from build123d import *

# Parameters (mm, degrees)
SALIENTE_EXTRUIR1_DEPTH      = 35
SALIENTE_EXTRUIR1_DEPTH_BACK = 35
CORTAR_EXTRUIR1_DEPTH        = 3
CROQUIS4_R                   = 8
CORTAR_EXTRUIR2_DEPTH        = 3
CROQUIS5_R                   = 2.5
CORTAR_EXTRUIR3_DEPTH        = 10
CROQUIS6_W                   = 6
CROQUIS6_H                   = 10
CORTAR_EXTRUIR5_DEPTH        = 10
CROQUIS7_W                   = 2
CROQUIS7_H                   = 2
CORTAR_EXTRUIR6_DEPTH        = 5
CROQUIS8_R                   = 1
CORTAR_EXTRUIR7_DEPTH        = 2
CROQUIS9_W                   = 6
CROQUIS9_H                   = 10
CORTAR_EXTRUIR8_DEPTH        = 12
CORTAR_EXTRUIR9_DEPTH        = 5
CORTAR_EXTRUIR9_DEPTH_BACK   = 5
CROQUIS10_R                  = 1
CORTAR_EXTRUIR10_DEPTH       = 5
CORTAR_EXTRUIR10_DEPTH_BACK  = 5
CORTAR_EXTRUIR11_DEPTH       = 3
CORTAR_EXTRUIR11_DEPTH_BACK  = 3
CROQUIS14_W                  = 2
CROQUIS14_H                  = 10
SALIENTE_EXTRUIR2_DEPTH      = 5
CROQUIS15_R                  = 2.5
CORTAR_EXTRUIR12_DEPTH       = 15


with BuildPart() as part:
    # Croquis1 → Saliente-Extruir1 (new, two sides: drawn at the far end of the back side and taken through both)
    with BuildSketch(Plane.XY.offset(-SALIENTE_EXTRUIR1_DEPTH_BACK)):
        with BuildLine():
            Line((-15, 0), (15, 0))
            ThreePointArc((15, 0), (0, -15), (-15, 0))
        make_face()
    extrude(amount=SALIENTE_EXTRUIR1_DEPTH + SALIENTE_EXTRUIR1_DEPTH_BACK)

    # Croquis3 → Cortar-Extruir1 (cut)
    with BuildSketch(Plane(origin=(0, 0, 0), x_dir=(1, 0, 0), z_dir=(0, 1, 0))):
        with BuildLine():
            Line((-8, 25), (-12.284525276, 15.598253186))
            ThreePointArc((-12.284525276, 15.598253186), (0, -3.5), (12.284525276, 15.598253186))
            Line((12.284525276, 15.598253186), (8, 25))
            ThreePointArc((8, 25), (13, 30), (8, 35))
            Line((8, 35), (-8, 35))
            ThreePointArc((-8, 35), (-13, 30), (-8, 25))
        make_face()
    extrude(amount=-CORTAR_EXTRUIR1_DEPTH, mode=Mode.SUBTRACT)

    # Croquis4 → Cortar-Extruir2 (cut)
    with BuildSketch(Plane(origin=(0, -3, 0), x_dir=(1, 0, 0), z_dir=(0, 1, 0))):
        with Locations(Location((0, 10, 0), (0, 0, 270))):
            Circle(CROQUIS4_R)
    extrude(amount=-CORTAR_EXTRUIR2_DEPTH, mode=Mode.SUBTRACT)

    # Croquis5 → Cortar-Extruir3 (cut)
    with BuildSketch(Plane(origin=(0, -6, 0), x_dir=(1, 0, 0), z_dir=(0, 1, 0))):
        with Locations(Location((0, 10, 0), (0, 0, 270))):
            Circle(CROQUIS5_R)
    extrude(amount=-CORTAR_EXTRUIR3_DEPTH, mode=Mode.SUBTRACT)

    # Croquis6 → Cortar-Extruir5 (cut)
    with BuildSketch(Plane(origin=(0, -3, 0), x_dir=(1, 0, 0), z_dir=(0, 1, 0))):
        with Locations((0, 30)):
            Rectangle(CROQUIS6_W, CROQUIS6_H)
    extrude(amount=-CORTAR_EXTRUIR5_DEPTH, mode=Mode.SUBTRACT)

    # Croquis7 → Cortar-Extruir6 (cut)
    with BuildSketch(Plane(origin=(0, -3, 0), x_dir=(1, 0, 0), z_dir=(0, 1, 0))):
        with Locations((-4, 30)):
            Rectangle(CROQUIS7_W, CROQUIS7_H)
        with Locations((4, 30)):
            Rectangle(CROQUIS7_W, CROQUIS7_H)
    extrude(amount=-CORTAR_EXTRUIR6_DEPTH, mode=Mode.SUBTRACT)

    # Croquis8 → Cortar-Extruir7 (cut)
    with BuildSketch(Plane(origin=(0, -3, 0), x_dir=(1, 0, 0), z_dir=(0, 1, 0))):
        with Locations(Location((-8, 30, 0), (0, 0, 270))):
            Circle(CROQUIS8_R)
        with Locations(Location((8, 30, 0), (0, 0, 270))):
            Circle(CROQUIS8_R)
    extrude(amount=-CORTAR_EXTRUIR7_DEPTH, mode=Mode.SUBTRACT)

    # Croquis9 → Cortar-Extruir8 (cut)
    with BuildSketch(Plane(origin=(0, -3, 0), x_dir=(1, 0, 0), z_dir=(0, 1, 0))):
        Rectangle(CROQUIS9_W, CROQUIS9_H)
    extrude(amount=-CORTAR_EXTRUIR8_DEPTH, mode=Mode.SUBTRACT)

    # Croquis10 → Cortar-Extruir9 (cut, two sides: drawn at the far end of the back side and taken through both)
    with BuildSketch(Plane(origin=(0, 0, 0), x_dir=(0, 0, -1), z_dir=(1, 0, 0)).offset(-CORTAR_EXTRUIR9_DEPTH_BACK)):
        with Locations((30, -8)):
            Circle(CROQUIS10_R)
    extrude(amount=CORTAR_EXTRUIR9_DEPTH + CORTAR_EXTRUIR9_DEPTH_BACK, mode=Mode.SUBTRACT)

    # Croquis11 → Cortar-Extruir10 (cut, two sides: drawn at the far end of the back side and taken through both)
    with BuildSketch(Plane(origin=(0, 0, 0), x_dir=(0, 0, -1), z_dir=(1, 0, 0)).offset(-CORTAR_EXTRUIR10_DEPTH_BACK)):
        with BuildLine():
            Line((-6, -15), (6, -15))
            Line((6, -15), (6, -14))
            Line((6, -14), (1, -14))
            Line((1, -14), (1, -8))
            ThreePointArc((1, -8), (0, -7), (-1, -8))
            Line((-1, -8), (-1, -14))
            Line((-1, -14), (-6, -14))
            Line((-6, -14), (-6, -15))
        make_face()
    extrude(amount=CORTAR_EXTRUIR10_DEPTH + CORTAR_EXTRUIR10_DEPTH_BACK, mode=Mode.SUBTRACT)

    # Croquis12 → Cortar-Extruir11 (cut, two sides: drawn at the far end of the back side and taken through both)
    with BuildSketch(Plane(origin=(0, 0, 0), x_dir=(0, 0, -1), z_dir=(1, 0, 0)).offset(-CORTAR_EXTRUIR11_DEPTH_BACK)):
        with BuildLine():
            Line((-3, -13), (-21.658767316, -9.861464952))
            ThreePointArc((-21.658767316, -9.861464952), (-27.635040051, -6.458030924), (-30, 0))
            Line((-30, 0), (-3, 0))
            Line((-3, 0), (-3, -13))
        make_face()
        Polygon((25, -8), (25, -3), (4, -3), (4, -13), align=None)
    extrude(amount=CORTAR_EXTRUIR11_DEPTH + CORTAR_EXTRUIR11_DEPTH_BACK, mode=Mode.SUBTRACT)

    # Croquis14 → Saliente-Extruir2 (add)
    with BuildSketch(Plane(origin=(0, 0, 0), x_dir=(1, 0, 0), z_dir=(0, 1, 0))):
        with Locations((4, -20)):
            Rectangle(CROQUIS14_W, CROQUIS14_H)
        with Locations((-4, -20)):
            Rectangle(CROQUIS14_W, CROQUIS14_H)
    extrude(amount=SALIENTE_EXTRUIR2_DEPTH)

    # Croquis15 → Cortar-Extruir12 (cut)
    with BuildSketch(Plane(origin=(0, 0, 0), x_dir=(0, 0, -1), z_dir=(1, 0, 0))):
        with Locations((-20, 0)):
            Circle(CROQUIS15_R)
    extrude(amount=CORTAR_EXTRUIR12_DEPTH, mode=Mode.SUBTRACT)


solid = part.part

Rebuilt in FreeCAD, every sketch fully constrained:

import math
import FreeCAD as App
import Part
import Sketcher
from FreeCAD import Vector


def add_polygon(sketch, points):
    """Adds a closed chain of lines whose ends are joined by coincident constraints."""
    first, n = sketch.GeometryCount, len(points)
    for a, b in zip(points, points[1:] + points[:1]):
        sketch.addGeometry(Part.LineSegment(App.Vector(*a, 0), App.Vector(*b, 0)), False)
    for i in range(n):
        sketch.addConstraint(Sketcher.Constraint("Coincident", first + i, 2, first + (i + 1) % n, 1))

doc = App.newDocument("Part")
body = doc.addObject("PartDesign::Body", "Body")

sketch1 = body.newObject("Sketcher::SketchObject", "Sketch")
sketch1.AttachmentSupport = (doc.getObject("XY_Plane"), [""])
sketch1.MapMode = "FlatFace"
sketch1.addGeometry(Part.LineSegment(Vector(15, 0, 0), Vector(-15, 0, 0)), False)
sketch1.addGeometry(Part.ArcOfCircle(Part.Circle(Vector(0, 0, 0), Vector(0, 0, 1), 15), math.radians(180), math.radians(360)), False)
sketch1.addConstraint(Sketcher.Constraint("Coincident", 0, 1, 1, 2))
sketch1.addConstraint(Sketcher.Constraint("Coincident", 1, 1, 0, 2))
sketch1.addConstraint(Sketcher.Constraint("Horizontal", 0))
sketch1.addConstraint(Sketcher.Constraint("Coincident", 1, 3, -1, 1))
sketch1.addConstraint(Sketcher.Constraint("PointOnObject", 0, 1, -1))
sketch1.addConstraint(Sketcher.Constraint("Radius", 1, 15.0))
pad1 = body.newObject("PartDesign::Pad", "Pad")
pad1.Profile = sketch1
pad1.Type = "TwoLengths"
pad1.Length = 35
pad1.Length2 = 35

sketch2 = body.newObject("Sketcher::SketchObject", "Sketch001")
sketch2.AttachmentSupport = (doc.getObject("XZ_Plane"), [""])
sketch2.MapMode = "FlatFace"
sketch2.addGeometry(Part.LineSegment(Vector(-8, -25, 0), Vector(-12.284525, -15.598253, 0)), False)
sketch2.addGeometry(Part.ArcOfCircle(Part.Circle(Vector(0, -10, 0), Vector(0, 0, 1), 13.5), math.radians(-24.499508), math.radians(204.499508)), False)
sketch2.addGeometry(Part.LineSegment(Vector(12.284525, -15.598253, 0), Vector(8, -25, 0)), False)
sketch2.addGeometry(Part.ArcOfCircle(Part.Circle(Vector(8, -30, 0), Vector(0, 0, 1), 5), math.radians(-90), math.radians(90)), False)
sketch2.addGeometry(Part.LineSegment(Vector(8, -35, 0), Vector(-8, -35, 0)), False)
sketch2.addGeometry(Part.ArcOfCircle(Part.Circle(Vector(-8, -30, 0), Vector(0, 0, 1), 5), math.radians(90), math.radians(270)), False)
sketch2.addConstraint(Sketcher.Constraint("Tangent", 0, 2, 1, 2))
sketch2.addConstraint(Sketcher.Constraint("Tangent", 1, 1, 2, 1))
sketch2.addConstraint(Sketcher.Constraint("Coincident", 2, 2, 3, 2))
sketch2.addConstraint(Sketcher.Constraint("Tangent", 3, 1, 4, 1))
sketch2.addConstraint(Sketcher.Constraint("Tangent", 4, 2, 5, 2))
sketch2.addConstraint(Sketcher.Constraint("Coincident", 5, 1, 0, 1))
sketch2.addConstraint(Sketcher.Constraint("Horizontal", 4))
sketch2.addConstraint(Sketcher.Constraint("Equal", 3, 5))
sketch2.addConstraint(Sketcher.Constraint("Symmetric", 0, 2, 1, 1, -2))
sketch2.addConstraint(Sketcher.Constraint("Vertical", 3, 3, 2, 2))
sketch2.addConstraint(Sketcher.Constraint("Vertical", 4, 2, 5, 1))
sketch2.addConstraint(Sketcher.Constraint("Radius", 3, 5.0))
sketch2.addConstraint(Sketcher.Constraint("Radius", 1, 13.5))
sketch2.addConstraint(Sketcher.Constraint("DistanceX", 4, 2, 4, 1, 16.0))
sketch2.addConstraint(Sketcher.Constraint("DistanceY", 1, 3, -1, 1, 10.0))
sketch2.addConstraint(Sketcher.Constraint("DistanceY", 3, 3, -1, 1, 30.0))
pocket1 = body.newObject("PartDesign::Pocket", "Pocket")
pocket1.Profile = sketch2
pocket1.Length = 3
pocket1.Reversed = True

sketch3 = body.newObject("Sketcher::SketchObject", "Sketch002")
sketch3.AttachmentSupport = (doc.getObject("XZ_Plane"), [""])
sketch3.MapMode = "FlatFace"
sketch3.AttachmentOffset = App.Placement(Vector(0, 0, 3), App.Rotation())
sketch3.addGeometry(Part.Circle(Vector(0, -10, 0), Vector(0, 0, 1), 8), False)
sketch3.addConstraint(Sketcher.Constraint("PointOnObject", 0, 3, -2))
sketch3.addConstraint(Sketcher.Constraint("Diameter", 0, 16.0))
sketch3.addConstraint(Sketcher.Constraint("DistanceY", 0, 3, -1, 1, 10.0))
pocket2 = body.newObject("PartDesign::Pocket", "Pocket001")
pocket2.Profile = sketch3
pocket2.Length = 3
pocket2.Reversed = True

sketch4 = body.newObject("Sketcher::SketchObject", "Sketch003")
sketch4.AttachmentSupport = (doc.getObject("XZ_Plane"), [""])
sketch4.MapMode = "FlatFace"
sketch4.AttachmentOffset = App.Placement(Vector(0, 0, 6), App.Rotation())
sketch4.addGeometry(Part.Circle(Vector(0, -10, 0), Vector(0, 0, 1), 2.5), False)
sketch4.addConstraint(Sketcher.Constraint("PointOnObject", 0, 3, -2))
sketch4.addConstraint(Sketcher.Constraint("Diameter", 0, 5.0))
sketch4.addConstraint(Sketcher.Constraint("DistanceY", 0, 3, -1, 1, 10.0))
pocket3 = body.newObject("PartDesign::Pocket", "Pocket002")
pocket3.Profile = sketch4
pocket3.Length = 10
pocket3.Reversed = True

sketch5 = body.newObject("Sketcher::SketchObject", "Sketch004")
sketch5.AttachmentSupport = (doc.getObject("XZ_Plane"), [""])
sketch5.MapMode = "FlatFace"
sketch5.AttachmentOffset = App.Placement(Vector(0, 0, 3), App.Rotation())
add_polygon(sketch5, [(-3, -35), (-3, -25), (3, -25), (3, -35)])
sketch5.addConstraint(Sketcher.Constraint("Vertical", 0))
sketch5.addConstraint(Sketcher.Constraint("Horizontal", 1))
sketch5.addConstraint(Sketcher.Constraint("Vertical", 2))
sketch5.addConstraint(Sketcher.Constraint("Horizontal", 3))
sketch5.addConstraint(Sketcher.Constraint("DistanceX", 1, 1, 1, 2, 6.0))
sketch5.addConstraint(Sketcher.Constraint("DistanceY", 0, 1, 0, 2, 10.0))
sketch5.addConstraint(Sketcher.Constraint("DistanceX", 0, 2, -1, 1, 3.0))
sketch5.addConstraint(Sketcher.Constraint("DistanceY", 0, 2, -1, 1, 25.0))
pocket4 = body.newObject("PartDesign::Pocket", "Pocket003")
pocket4.Profile = sketch5
pocket4.Length = 10
pocket4.Reversed = True

sketch6 = body.newObject("Sketcher::SketchObject", "Sketch005")
sketch6.AttachmentSupport = (doc.getObject("XZ_Plane"), [""])
sketch6.MapMode = "FlatFace"
sketch6.AttachmentOffset = App.Placement(Vector(0, 0, 3), App.Rotation())
add_polygon(sketch6, [(-5, -31), (-5, -29), (-3, -29), (-3, -31)])
add_polygon(sketch6, [(3, -31), (3, -29), (5, -29), (5, -31)])
sketch6.addConstraint(Sketcher.Constraint("Vertical", 0))
sketch6.addConstraint(Sketcher.Constraint("Horizontal", 1))
sketch6.addConstraint(Sketcher.Constraint("Vertical", 2))
sketch6.addConstraint(Sketcher.Constraint("Horizontal", 3))
sketch6.addConstraint(Sketcher.Constraint("Vertical", 4))
sketch6.addConstraint(Sketcher.Constraint("Horizontal", 5))
sketch6.addConstraint(Sketcher.Constraint("Vertical", 6))
sketch6.addConstraint(Sketcher.Constraint("Horizontal", 7))
sketch6.addConstraint(Sketcher.Constraint("Symmetric", 1, 2, 4, 2, -2))
sketch6.addConstraint(Sketcher.Constraint("Symmetric", 3, 2, 6, 2, -2))
sketch6.addConstraint(Sketcher.Constraint("Equal", 7, 0))
sketch6.addConstraint(Sketcher.Constraint("DistanceX", 1, 1, 1, 2, 2.0))
sketch6.addConstraint(Sketcher.Constraint("DistanceX", 0, 2, -1, 1, 5.0))
sketch6.addConstraint(Sketcher.Constraint("DistanceY", 0, 2, -1, 1, 29.0))
pocket5 = body.newObject("PartDesign::Pocket", "Pocket004")
pocket5.Profile = sketch6
pocket5.Length = 5
pocket5.Reversed = True

sketch7 = body.newObject("Sketcher::SketchObject", "Sketch006")
sketch7.AttachmentSupport = (doc.getObject("XZ_Plane"), [""])
sketch7.MapMode = "FlatFace"
sketch7.AttachmentOffset = App.Placement(Vector(0, 0, 3), App.Rotation())
sketch7.addGeometry(Part.Circle(Vector(-8, -30, 0), Vector(0, 0, 1), 1), False)
sketch7.addGeometry(Part.Circle(Vector(8, -30, 0), Vector(0, 0, 1), 1), False)
sketch7.addConstraint(Sketcher.Constraint("Equal", 0, 1))
sketch7.addConstraint(Sketcher.Constraint("Symmetric", 0, 3, 1, 3, -2))
sketch7.addConstraint(Sketcher.Constraint("Diameter", 0, 2.0))
sketch7.addConstraint(Sketcher.Constraint("DistanceX", 0, 3, -1, 1, 8.0))
sketch7.addConstraint(Sketcher.Constraint("DistanceY", 0, 3, -1, 1, 30.0))
pocket6 = body.newObject("PartDesign::Pocket", "Pocket005")
pocket6.Profile = sketch7
pocket6.Length = 2
pocket6.Reversed = True

sketch8 = body.newObject("Sketcher::SketchObject", "Sketch007")
sketch8.AttachmentSupport = (doc.getObject("XZ_Plane"), [""])
sketch8.MapMode = "FlatFace"
sketch8.AttachmentOffset = App.Placement(Vector(0, 0, 3), App.Rotation())
add_polygon(sketch8, [(-3, -5), (-3, 5), (3, 5), (3, -5)])
sketch8.addConstraint(Sketcher.Constraint("Vertical", 0))
sketch8.addConstraint(Sketcher.Constraint("Horizontal", 1))
sketch8.addConstraint(Sketcher.Constraint("Vertical", 2))
sketch8.addConstraint(Sketcher.Constraint("Horizontal", 3))
sketch8.addConstraint(Sketcher.Constraint("Symmetric", 0, 2, 2, 2, -1, 1))
sketch8.addConstraint(Sketcher.Constraint("DistanceX", 1, 1, 1, 2, 6.0))
sketch8.addConstraint(Sketcher.Constraint("DistanceY", 0, 1, 0, 2, 10.0))
pocket7 = body.newObject("PartDesign::Pocket", "Pocket006")
pocket7.Profile = sketch8
pocket7.Length = 12
pocket7.Reversed = True

sketch9 = body.newObject("Sketcher::SketchObject", "Sketch008")
sketch9.AttachmentSupport = (doc.getObject("YZ_Plane"), [""])
sketch9.MapMode = "FlatFace"
sketch9.addGeometry(Part.Circle(Vector(-8, -30, 0), Vector(0, 0, 1), 1), False)
sketch9.addConstraint(Sketcher.Constraint("Diameter", 0, 2.0))
sketch9.addConstraint(Sketcher.Constraint("DistanceX", 0, 3, -1, 1, 8.0))
sketch9.addConstraint(Sketcher.Constraint("DistanceY", 0, 3, -1, 1, 30.0))
pocket8 = body.newObject("PartDesign::Pocket", "Pocket007")
pocket8.Profile = sketch9
pocket8.Type = "TwoLengths"
pocket8.Length = 5
pocket8.Length2 = 5
pocket8.Reversed = True

sketch10 = body.newObject("Sketcher::SketchObject", "Sketch009")
sketch10.AttachmentSupport = (doc.getObject("YZ_Plane"), [""])
sketch10.MapMode = "FlatFace"
sketch10.addGeometry(Part.LineSegment(Vector(-15, 6, 0), Vector(-15, -6, 0)), False)
sketch10.addGeometry(Part.LineSegment(Vector(-15, -6, 0), Vector(-14, -6, 0)), False)
sketch10.addGeometry(Part.LineSegment(Vector(-14, -6, 0), Vector(-14, -1, 0)), False)
sketch10.addGeometry(Part.LineSegment(Vector(-14, -1, 0), Vector(-8, -1, 0)), False)
sketch10.addGeometry(Part.ArcOfCircle(Part.Circle(Vector(-8, 0, 0), Vector(0, 0, 1), 1), math.radians(-90), math.radians(90)), False)
sketch10.addGeometry(Part.LineSegment(Vector(-8, 1, 0), Vector(-14, 1, 0)), False)
sketch10.addGeometry(Part.LineSegment(Vector(-14, 1, 0), Vector(-14, 6, 0)), False)
sketch10.addGeometry(Part.LineSegment(Vector(-14, 6, 0), Vector(-15, 6, 0)), False)
sketch10.addConstraint(Sketcher.Constraint("Coincident", 0, 2, 1, 1))
sketch10.addConstraint(Sketcher.Constraint("Coincident", 1, 2, 2, 1))
sketch10.addConstraint(Sketcher.Constraint("Coincident", 2, 2, 3, 1))
sketch10.addConstraint(Sketcher.Constraint("Tangent", 3, 2, 4, 1))
sketch10.addConstraint(Sketcher.Constraint("Tangent", 4, 2, 5, 1))
sketch10.addConstraint(Sketcher.Constraint("Coincident", 5, 2, 6, 1))
sketch10.addConstraint(Sketcher.Constraint("Coincident", 6, 2, 7, 1))
sketch10.addConstraint(Sketcher.Constraint("Coincident", 7, 2, 0, 1))
sketch10.addConstraint(Sketcher.Constraint("Vertical", 0))
sketch10.addConstraint(Sketcher.Constraint("Horizontal", 1))
sketch10.addConstraint(Sketcher.Constraint("Vertical", 2))
sketch10.addConstraint(Sketcher.Constraint("Horizontal", 3))
sketch10.addConstraint(Sketcher.Constraint("Horizontal", 5))
sketch10.addConstraint(Sketcher.Constraint("Vertical", 6))
sketch10.addConstraint(Sketcher.Constraint("Horizontal", 7))
sketch10.addConstraint(Sketcher.Constraint("Symmetric", 2, 2, 5, 2, -1))
sketch10.addConstraint(Sketcher.Constraint("Equal", 2, 6))
sketch10.addConstraint(Sketcher.Constraint("Radius", 4, 1.0))
sketch10.addConstraint(Sketcher.Constraint("DistanceX", 1, 1, 1, 2, 1.0))
sketch10.addConstraint(Sketcher.Constraint("DistanceX", 3, 1, 3, 2, 6.0))
sketch10.addConstraint(Sketcher.Constraint("DistanceY", 0, 2, 0, 1, 12.0))
sketch10.addConstraint(Sketcher.Constraint("DistanceX", 4, 3, -1, 1, 8.0))
pocket9 = body.newObject("PartDesign::Pocket", "Pocket008")
pocket9.Profile = sketch10
pocket9.Type = "TwoLengths"
pocket9.Length = 5
pocket9.Length2 = 5
pocket9.Reversed = True

sketch11 = body.newObject("Sketcher::SketchObject", "Sketch010")
sketch11.AttachmentSupport = (doc.getObject("YZ_Plane"), [""])
sketch11.MapMode = "FlatFace"
sketch11.addGeometry(Part.LineSegment(Vector(-9.861465, 21.658767, 0), Vector(-13, 3, 0)), False)
sketch11.addGeometry(Part.LineSegment(Vector(-13, 3, 0), Vector(0, 3, 0)), False)
sketch11.addGeometry(Part.LineSegment(Vector(0, 3, 0), Vector(0, 30, 0)), False)
sketch11.addGeometry(Part.ArcOfCircle(Part.Circle(Vector(0, 20, 0), Vector(0, 0, 1), 10), math.radians(90), math.radians(170.451831)), False)
add_polygon(sketch11, [(-8, -25), (-3, -25), (-3, -4), (-13, -4)])
sketch11.addConstraint(Sketcher.Constraint("Coincident", 0, 2, 1, 1))
sketch11.addConstraint(Sketcher.Constraint("Coincident", 1, 2, 2, 1))
sketch11.addConstraint(Sketcher.Constraint("Coincident", 2, 2, 3, 1))
sketch11.addConstraint(Sketcher.Constraint("Tangent", 3, 2, 0, 1))
sketch11.addConstraint(Sketcher.Constraint("Horizontal", 1))
sketch11.addConstraint(Sketcher.Constraint("Vertical", 2))
sketch11.addConstraint(Sketcher.Constraint("Horizontal", 4))
sketch11.addConstraint(Sketcher.Constraint("Vertical", 5))
sketch11.addConstraint(Sketcher.Constraint("Horizontal", 6))
sketch11.addConstraint(Sketcher.Constraint("PointOnObject", 3, 3, -2))
sketch11.addConstraint(Sketcher.Constraint("PointOnObject", 1, 2, -2))
sketch11.addConstraint(Sketcher.Constraint("Vertical", 0, 2, 6, 2))
sketch11.addConstraint(Sketcher.Constraint("Radius", 3, 10.0))
sketch11.addConstraint(Sketcher.Constraint("DistanceX", 1, 1, 1, 2, 13.0))
sketch11.addConstraint(Sketcher.Constraint("DistanceX", 4, 1, 4, 2, 5.0))
sketch11.addConstraint(Sketcher.Constraint("DistanceX", 6, 2, 6, 1, 10.0))
sketch11.addConstraint(Sketcher.Constraint("DistanceY", 2, 1, 2, 2, 27.0))
sketch11.addConstraint(Sketcher.Constraint("DistanceY", 5, 1, 5, 2, 21.0))
sketch11.addConstraint(Sketcher.Constraint("DistanceY", -1, 1, 3, 3, 20.0))
sketch11.addConstraint(Sketcher.Constraint("DistanceY", 4, 2, -1, 1, 25.0))
pocket10 = body.newObject("PartDesign::Pocket", "Pocket009")
pocket10.Profile = sketch11
pocket10.Type = "TwoLengths"
pocket10.Length = 3
pocket10.Length2 = 3
pocket10.Reversed = True

sketch12 = body.newObject("Sketcher::SketchObject", "Sketch011")
sketch12.AttachmentSupport = (doc.getObject("XZ_Plane"), [""])
sketch12.MapMode = "FlatFace"
add_polygon(sketch12, [(3, 15), (3, 25), (5, 25), (5, 15)])
add_polygon(sketch12, [(-5, 15), (-5, 25), (-3, 25), (-3, 15)])
sketch12.addConstraint(Sketcher.Constraint("Vertical", 0))
sketch12.addConstraint(Sketcher.Constraint("Horizontal", 1))
sketch12.addConstraint(Sketcher.Constraint("Vertical", 2))
sketch12.addConstraint(Sketcher.Constraint("Horizontal", 3))
sketch12.addConstraint(Sketcher.Constraint("Vertical", 4))
sketch12.addConstraint(Sketcher.Constraint("Horizontal", 5))
sketch12.addConstraint(Sketcher.Constraint("Vertical", 6))
sketch12.addConstraint(Sketcher.Constraint("Horizontal", 7))
sketch12.addConstraint(Sketcher.Constraint("Symmetric", 1, 2, 4, 2, -2))
sketch12.addConstraint(Sketcher.Constraint("Symmetric", 3, 2, 6, 2, -2))
sketch12.addConstraint(Sketcher.Constraint("DistanceX", 1, 1, 1, 2, 2.0))
sketch12.addConstraint(Sketcher.Constraint("DistanceY", 0, 1, 0, 2, 10.0))
sketch12.addConstraint(Sketcher.Constraint("DistanceX", -1, 1, 0, 2, 3.0))
sketch12.addConstraint(Sketcher.Constraint("DistanceY", -1, 1, 0, 2, 25.0))
pad2 = body.newObject("PartDesign::Pad", "Pad001")
pad2.Profile = sketch12
pad2.Length = 5
pad2.Reversed = True

sketch13 = body.newObject("Sketcher::SketchObject", "Sketch012")
sketch13.AttachmentSupport = (doc.getObject("YZ_Plane"), [""])
sketch13.MapMode = "FlatFace"
sketch13.addGeometry(Part.Circle(Vector(0, 20, 0), Vector(0, 0, 1), 2.5), False)
sketch13.addConstraint(Sketcher.Constraint("PointOnObject", 0, 3, -2))
sketch13.addConstraint(Sketcher.Constraint("Diameter", 0, 5.0))
sketch13.addConstraint(Sketcher.Constraint("DistanceY", -1, 1, 0, 3, 20.0))
pocket11 = body.newObject("PartDesign::Pocket", "Pocket010")
pocket11.Profile = sketch13
pocket11.Length = 15
pocket11.Reversed = True

doc.recompute()
